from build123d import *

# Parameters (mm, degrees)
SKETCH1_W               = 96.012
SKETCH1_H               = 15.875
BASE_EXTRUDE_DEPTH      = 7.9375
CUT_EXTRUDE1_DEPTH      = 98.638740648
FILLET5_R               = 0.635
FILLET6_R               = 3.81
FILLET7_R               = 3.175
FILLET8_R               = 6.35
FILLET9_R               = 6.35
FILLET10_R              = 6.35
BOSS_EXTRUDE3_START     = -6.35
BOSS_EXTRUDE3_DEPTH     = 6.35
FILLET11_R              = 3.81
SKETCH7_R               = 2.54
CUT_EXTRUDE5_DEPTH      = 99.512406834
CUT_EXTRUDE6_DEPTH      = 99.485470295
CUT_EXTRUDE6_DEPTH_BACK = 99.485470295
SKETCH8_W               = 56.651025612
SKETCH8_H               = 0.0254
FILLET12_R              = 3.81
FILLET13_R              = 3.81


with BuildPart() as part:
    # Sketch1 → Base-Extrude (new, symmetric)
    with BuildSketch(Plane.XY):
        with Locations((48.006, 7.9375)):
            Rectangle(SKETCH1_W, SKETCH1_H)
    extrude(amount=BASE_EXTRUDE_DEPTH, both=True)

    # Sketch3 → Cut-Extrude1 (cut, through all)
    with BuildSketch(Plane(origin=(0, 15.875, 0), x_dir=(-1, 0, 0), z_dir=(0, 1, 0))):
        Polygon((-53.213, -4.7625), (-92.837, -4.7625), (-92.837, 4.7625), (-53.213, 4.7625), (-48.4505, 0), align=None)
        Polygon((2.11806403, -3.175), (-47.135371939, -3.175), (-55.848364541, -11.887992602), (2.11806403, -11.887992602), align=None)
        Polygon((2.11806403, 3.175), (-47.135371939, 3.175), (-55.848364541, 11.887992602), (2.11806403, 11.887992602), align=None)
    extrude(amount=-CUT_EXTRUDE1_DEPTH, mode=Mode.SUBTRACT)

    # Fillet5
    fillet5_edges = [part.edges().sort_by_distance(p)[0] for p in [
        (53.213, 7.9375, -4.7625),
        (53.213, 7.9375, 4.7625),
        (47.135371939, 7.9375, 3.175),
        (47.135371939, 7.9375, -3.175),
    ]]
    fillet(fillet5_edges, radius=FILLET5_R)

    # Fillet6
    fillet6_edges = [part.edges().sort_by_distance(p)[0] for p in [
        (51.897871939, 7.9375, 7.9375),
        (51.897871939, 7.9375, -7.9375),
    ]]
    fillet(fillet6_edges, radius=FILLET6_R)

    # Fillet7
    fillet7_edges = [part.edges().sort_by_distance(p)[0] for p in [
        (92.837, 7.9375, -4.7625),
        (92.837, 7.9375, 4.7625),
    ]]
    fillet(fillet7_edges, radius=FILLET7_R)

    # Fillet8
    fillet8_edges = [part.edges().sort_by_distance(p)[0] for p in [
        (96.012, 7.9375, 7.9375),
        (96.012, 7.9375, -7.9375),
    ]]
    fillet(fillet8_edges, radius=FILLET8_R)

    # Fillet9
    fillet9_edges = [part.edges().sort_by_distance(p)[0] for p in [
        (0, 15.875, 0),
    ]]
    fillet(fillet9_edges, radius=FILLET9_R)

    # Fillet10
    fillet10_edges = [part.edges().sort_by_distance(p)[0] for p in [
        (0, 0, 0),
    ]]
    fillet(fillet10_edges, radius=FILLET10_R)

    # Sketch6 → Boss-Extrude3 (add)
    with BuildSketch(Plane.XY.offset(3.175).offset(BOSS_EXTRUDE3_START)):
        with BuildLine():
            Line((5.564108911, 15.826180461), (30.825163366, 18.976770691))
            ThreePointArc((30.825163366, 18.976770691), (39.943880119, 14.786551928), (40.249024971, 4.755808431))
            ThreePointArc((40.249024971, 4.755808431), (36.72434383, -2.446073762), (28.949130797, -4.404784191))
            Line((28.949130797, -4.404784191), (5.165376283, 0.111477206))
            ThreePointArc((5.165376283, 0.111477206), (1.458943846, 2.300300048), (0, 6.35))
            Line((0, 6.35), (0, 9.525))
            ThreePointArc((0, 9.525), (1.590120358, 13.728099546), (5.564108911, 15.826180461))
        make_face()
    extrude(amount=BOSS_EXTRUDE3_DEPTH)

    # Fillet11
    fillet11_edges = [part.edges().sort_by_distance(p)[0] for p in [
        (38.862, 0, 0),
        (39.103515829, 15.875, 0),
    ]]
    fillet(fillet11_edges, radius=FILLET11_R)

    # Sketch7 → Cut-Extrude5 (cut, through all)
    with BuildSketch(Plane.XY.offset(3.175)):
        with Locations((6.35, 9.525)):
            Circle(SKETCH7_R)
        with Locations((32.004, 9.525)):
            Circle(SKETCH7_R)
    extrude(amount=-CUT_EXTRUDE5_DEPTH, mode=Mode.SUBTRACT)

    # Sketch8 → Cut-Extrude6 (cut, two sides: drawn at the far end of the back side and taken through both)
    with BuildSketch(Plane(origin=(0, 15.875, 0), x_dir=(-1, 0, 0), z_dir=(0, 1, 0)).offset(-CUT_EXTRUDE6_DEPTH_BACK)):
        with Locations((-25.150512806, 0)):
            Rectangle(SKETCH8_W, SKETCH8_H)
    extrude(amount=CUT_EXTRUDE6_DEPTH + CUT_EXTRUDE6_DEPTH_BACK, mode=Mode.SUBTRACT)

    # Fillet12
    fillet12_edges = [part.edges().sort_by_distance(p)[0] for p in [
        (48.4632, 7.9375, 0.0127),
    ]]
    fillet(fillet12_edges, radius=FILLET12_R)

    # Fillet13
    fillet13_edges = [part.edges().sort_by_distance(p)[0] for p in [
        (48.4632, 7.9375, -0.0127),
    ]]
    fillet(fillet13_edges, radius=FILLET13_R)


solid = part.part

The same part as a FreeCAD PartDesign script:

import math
import FreeCAD as App
import Part
import Sketcher
from FreeCAD import Vector
Q = App.Units.Quantity


def edges_at(feature, points):
    """Names of the edges that pass closest to the given points."""
    edges = feature.Shape.Edges
    near = lambda p: min(range(len(edges)), key=lambda i: edges[i].distToShape(Part.Vertex(*p))[0])
    return sorted({f"Edge{near(p) + 1}" for p in points})

doc = App.newDocument("Part")
params = doc.addObject("Spreadsheet::Sheet", "Params")
for row, (alias, value) in enumerate([
    ("sketch1_width", "3.78 in"),
    ("sketch1_height", "0.625 in"),
    ("pad1_length", "0.625 in"),
    ("sketch2_width", "1.56 in"),
    ("sketch2_height", "0.375 in"),
    ("fillet_radius", "0.025 in"),
    ("fillet2_radius", "0.15 in"),
    ("fillet3_radius", "0.125 in"),
    ("fillet4_radius", "0.25 in"),
    ("fillet5_radius", "0.25 in"),
    ("fillet6_radius", "0.25 in"),
    ("sketch3_radius", "0.25 in"),
    ("sketch3_radius2", "0.375 in"),
    ("sketch3_height", "0.125 in"),
    ("pad2_length", "0.25 in"),
    ("fillet7_radius", "0.15 in"),
    ("sketch4_diameter", "0.2 in"),
    ("sketch5_height", "0.001 in"),
    ("fillet8_radius", "0.15 in"),
    ("fillet9_radius", "0.15 in"),
], start=1):
    params.set(f"A{row}", alias)
    params.set(f"B{row}", "=" + value)
    params.setAlias(f"B{row}", alias)

body = doc.addObject("PartDesign::Body", "Body")

# Sketch on XY plane
sketch1 = doc.addObject("Sketcher::SketchObject", "Sketch")
body.addObject(sketch1)
sketch1.AttachmentSupport = (doc.XY_Plane, [""])
sketch1.MapMode = "FlatFace"
sketch1.addGeometry([
    Part.LineSegment(Vector(0, 16, 0), Vector(0, 0, 0)),
    Part.LineSegment(Vector(0, 0, 0), Vector(96, 0, 0)),
    Part.LineSegment(Vector(96, 0, 0), Vector(96, 16, 0)),
    Part.LineSegment(Vector(96, 16, 0), Vector(0, 16, 0)),
], False)
sketch1.addConstraint([
    Sketcher.Constraint("Coincident", 0, 2, 1, 1),
    Sketcher.Constraint("Coincident", 1, 2, 2, 1),
    Sketcher.Constraint("Coincident", 2, 2, 3, 1),
    Sketcher.Constraint("Coincident", 3, 2, 0, 1),
    Sketcher.Constraint("Vertical", 0),
    Sketcher.Constraint("Horizontal", 1),
    Sketcher.Constraint("Vertical", 2),
    Sketcher.Constraint("Horizontal", 3),
    Sketcher.Constraint("Coincident", 0, 2, -1, 1),
    Sketcher.Constraint("DistanceX", 1, 1, 1, 2, Q("3.78 in")),
    Sketcher.Constraint("DistanceY", 0, 2, 0, 1, Q("0.625 in")),
])
sketch1.setExpression("Constraints[9]", "Params.sketch1_width")
sketch1.setExpression("Constraints[10]", "Params.sketch1_height")
pad1 = doc.addObject("PartDesign::Pad", "Pad")
body.addObject(pad1)
pad1.Profile = sketch1
pad1.setExpression("Length", "Params.pad1_length")
pad1.Midplane = True

# Sketch on XZ plane
sketch2 = doc.addObject("Sketcher::SketchObject", "Sketch001")
body.addObject(sketch2)
sketch2.AttachmentSupport = (doc.XZ_Plane, [""])
sketch2.MapMode = "FlatFace"
sketch2.AttachmentOffset = App.Placement(Vector(0, 0, -0.625 * 25.4), App.Rotation())
sketch2.addGeometry([
    Part.LineSegment(Vector(93, -5, 0), Vector(53, -5, 0)),  # 0
    Part.LineSegment(Vector(53, -5, 0), Vector(48, 0, 0)),  # 1
    Part.LineSegment(Vector(48, 0, 0), Vector(53, 5, 0)),  # 2
    Part.LineSegment(Vector(53, 5, 0), Vector(93, 5, 0)),  # 3
    Part.LineSegment(Vector(93, 5, 0), Vector(93, -5, 0)),  # 4
    Part.LineSegment(Vector(-2, -3, 0), Vector(47, -3, 0)),  # 5
    Part.LineSegment(Vector(47, -3, 0), Vector(56, -12, 0)),  # 6
    Part.LineSegment(Vector(56, -12, 0), Vector(-2, -12, 0)),  # 7
    Part.LineSegment(Vector(-2, -12, 0), Vector(-2, -3, 0)),  # 8
    Part.LineSegment(Vector(47, 3, 0), Vector(-2, 3, 0)),  # 9
    Part.LineSegment(Vector(-2, 3, 0), Vector(-2, 12, 0)),  # 10
    Part.LineSegment(Vector(-2, 12, 0), Vector(56, 12, 0)),  # 11
    Part.LineSegment(Vector(56, 12, 0), Vector(47, 3, 0)),  # 12
], False)
sketch2.addConstraint([
    Sketcher.Constraint("Coincident", 0, 2, 1, 1),
    Sketcher.Constraint("Coincident", 1, 2, 2, 1),
    Sketcher.Constraint("Coincident", 2, 2, 3, 1),
    Sketcher.Constraint("Coincident", 3, 2, 4, 1),
    Sketcher.Constraint("Coincident", 4, 2, 0, 1),
    Sketcher.Constraint("Coincident", 5, 2, 6, 1),
    Sketcher.Constraint("Coincident", 6, 2, 7, 1),
    Sketcher.Constraint("Coincident", 7, 2, 8, 1),
    Sketcher.Constraint("Coincident", 8, 2, 5, 1),
    Sketcher.Constraint("Coincident", 9, 2, 10, 1),
    Sketcher.Constraint("Coincident", 10, 2, 11, 1),
    Sketcher.Constraint("Coincident", 11, 2, 12, 1),
    Sketcher.Constraint("Coincident", 12, 2, 9, 1),
    Sketcher.Constraint("Horizontal", 0),
    Sketcher.Constraint("Horizontal", 3),
    Sketcher.Constraint("Vertical", 4),
    Sketcher.Constraint("Horizontal", 5),
    Sketcher.Constraint("Horizontal", 7),
    Sketcher.Constraint("Vertical", 8),
    Sketcher.Constraint("Horizontal", 9),
    Sketcher.Constraint("Vertical", 10),
    Sketcher.Constraint("Horizontal", 11),
    Sketcher.Constraint("Symmetric", 0, 2, 2, 2, -1),
    Sketcher.Constraint("Symmetric", 8, 2, 9, 2, -1),
    Sketcher.Constraint("Symmetric", 6, 2, 11, 2, -1),
    Sketcher.Constraint("PointOnObject", 1, 2, -1),
    Sketcher.Constraint("Perpendicular", 1, 2),
    Sketcher.Constraint("Perpendicular", 2, 6),
    Sketcher.Constraint("Perpendicular", 6, 12),
    Sketcher.Constraint("DistanceX", 0, 2, 0, 1, Q("1.56 in")),
    Sketcher.Constraint("DistanceY", 4, 2, 4, 1, Q("0.375 in")),
    Sketcher.Constraint("DistanceY", 8, 2, 9, 2, Q("0.25 in")),
    Sketcher.Constraint("DistanceX", -1, 1, 0, 2, Q("2.095 in")),
    Sketcher.Constraint("DistanceX", 7, 2, 7, 1, 57.966429),
    Sketcher.Constraint("DistanceX", 5, 1, 5, 2, 49.253436),
    Sketcher.Constraint("DistanceX", -1, 1, 5, 2, 47.135372),
])
sketch2.setExpression("Constraints[29]", "Params.sketch2_width")
sketch2.setExpression("Constraints[30]", "Params.sketch2_height")
pocket1 = doc.addObject("PartDesign::Pocket", "Pocket")
body.addObject(pocket1)
pocket1.Profile = sketch2
pocket1.Type = "ThroughAll"
pocket1.Reversed = True
doc.recompute()

fillet = doc.addObject("PartDesign::Fillet", "Fillet")
body.addObject(fillet)
fillet.Base = (pocket1, edges_at(pocket1, [
    (53.213, 7.938, -4.763),
    (53.213, 7.938, 4.763),
    (47.135, 7.938, 3.175),
    (47.135, 7.938, -3.175),
]))
fillet.setExpression("Radius", "Params.fillet_radius")
doc.recompute()

fillet2 = doc.addObject("PartDesign::Fillet", "Fillet001")
body.addObject(fillet2)
fillet2.Base = (fillet, edges_at(fillet, [(51.898, 7.938, 7.938), (51.898, 7.938, -7.938)]))
fillet2.setExpression("Radius", "Params.fillet2_radius")
doc.recompute()

fillet3 = doc.addObject("PartDesign::Fillet", "Fillet002")
body.addObject(fillet3)
fillet3.Base = (fillet2, edges_at(fillet2, [(92.837, 7.938, -4.763), (92.837, 7.938, 4.763)]))
fillet3.setExpression("Radius", "Params.fillet3_radius")
doc.recompute()

fillet4 = doc.addObject("PartDesign::Fillet", "Fillet003")
body.addObject(fillet4)
fillet4.Base = (fillet3, edges_at(fillet3, [(96.012, 7.938, 7.938), (96.012, 7.938, -7.938)]))
fillet4.setExpression("Radius", "Params.fillet4_radius")
doc.recompute()

fillet5 = doc.addObject("PartDesign::Fillet", "Fillet004")
body.addObject(fillet5)
fillet5.Base = (fillet4, edges_at(fillet4, [(0, 15.875, 0)]))
fillet5.setExpression("Radius", "Params.fillet5_radius")
doc.recompute()

fillet6 = doc.addObject("PartDesign::Fillet", "Fillet005")
body.addObject(fillet6)
fillet6.Base = (fillet5, edges_at(fillet5, [(0, 0, 0)]))
fillet6.setExpression("Radius", "Params.fillet6_radius")

# Sketch on XY plane
sketch3 = doc.addObject("Sketcher::SketchObject", "Sketch002")
body.addObject(sketch3)
sketch3.AttachmentSupport = (doc.XY_Plane, [""])
sketch3.MapMode = "FlatFace"
sketch3.AttachmentOffset = App.Placement(Vector(0, 0, -0.125 * 25.4), App.Rotation())
sketch3.addGeometry([
    Part.LineSegment(Vector(30.8, 19, 0), Vector(5.6, 15.8, 0)),  # 0
    Part.ArcOfCircle(Part.Circle(Vector(6.4, 9.5, 0), Vector(0, 0, 1), 6.4), math.radians(97), math.radians(180)),  # 1
    Part.LineSegment(Vector(0, 9.5, 0), Vector(0, 6.3, 0)),  # 2
    Part.ArcOfCircle(Part.Circle(Vector(6.3, 6.3, 0), Vector(0, 0, 1), 6.3), math.radians(180), math.radians(259)),  # 3
    Part.LineSegment(Vector(5.2, 0.1, 0), Vector(28.9, -4.4, 0)),  # 4
    Part.ArcOfCircle(Part.Circle(Vector(30.7, 5, 0), Vector(0, 0, 1), 9.5), math.radians(-101), math.radians(-1)),  # 5
    Part.ArcOfCircle(Part.Circle(Vector(32, 9.5, 0), Vector(0, 0, 1), 9.5), math.radians(-30), math.radians(97)),  # 6
], False)
sketch3.addConstraint([
    Sketcher.Constraint("Tangent", 0, 2, 1, 1),
    Sketcher.Constraint("Tangent", 1, 2, 2, 1),
    Sketcher.Constraint("Tangent", 2, 2, 3, 1),
    Sketcher.Constraint("Tangent", 3, 2, 4, 1),
    Sketcher.Constraint("Tangent", 4, 2, 5, 1),
    Sketcher.Constraint("Coincident", 5, 2, 6, 1),
    Sketcher.Constraint("Tangent", 6, 2, 0, 1),
    Sketcher.Constraint("Vertical", 2),
    Sketcher.Constraint("Equal", 1, 3),
    Sketcher.Constraint("Equal", 5, 6),
    Sketcher.Constraint("PointOnObject", 1, 2, -2),
    Sketcher.Constraint("Horizontal", 1, 3, 6, 3),
    Sketcher.Constraint("Radius", 1, Q("0.25 in")),
    Sketcher.Constraint("Radius", 5, Q("0.375 in")),
    Sketcher.Constraint("DistanceY", 2, 2, 2, 1, Q("0.125 in")),
    Sketcher.Constraint("DistanceY", -1, 1, 3, 3, Q("0.25 in")),
    Sketcher.Constraint("DistanceX", -1, 1, 6, 3, Q("1.26 in")),
    Sketcher.Constraint("DistanceY", 5, 3, 1, 3, Q("0.18 in")),
    Sketcher.Constraint("Distance", 4, 24.20875),
])
sketch3.setExpression("Constraints[12]", "Params.sketch3_radius")
sketch3.setExpression("Constraints[13]", "Params.sketch3_radius2")
sketch3.setExpression("Constraints[14]", "Params.sketch3_height")
pad2 = doc.addObject("PartDesign::Pad", "Pad001")
body.addObject(pad2)
pad2.Profile = sketch3
pad2.setExpression("Length", "Params.pad2_length")
doc.recompute()

fillet7 = doc.addObject("PartDesign::Fillet", "Fillet006")
body.addObject(fillet7)
fillet7.Base = (pad2, edges_at(pad2, [(38.862, 0, 0), (39.104, 15.875, 0)]))
fillet7.setExpression("Radius", "Params.fillet7_radius")

# Sketch on XY plane
sketch4 = doc.addObject("Sketcher::SketchObject", "Sketch003")
body.addObject(sketch4)
sketch4.AttachmentSupport = (doc.XY_Plane, [""])
sketch4.MapMode = "FlatFace"
sketch4.AttachmentOffset = App.Placement(Vector(0, 0, 0.125 * 25.4), App.Rotation())
sketch4.addGeometry([
    Part.Circle(Vector(6.3, 9.5, 0), Vector(0, 0, 1), 2.5),
    Part.Circle(Vector(32, 9.5, 0), Vector(0, 0, 1), 2.5),
], False)
sketch4.addConstraint([
    Sketcher.Constraint("Equal", 0, 1),
    Sketcher.Constraint("Horizontal", 0, 3, 1, 3),
    Sketcher.Constraint("Diameter", 0, Q("0.2 in")),
    Sketcher.Constraint("DistanceX", -1, 1, 0, 3, Q("0.25 in")),
    Sketcher.Constraint("DistanceX", -1, 1, 1, 3, Q("1.26 in")),
    Sketcher.Constraint("DistanceY", -1, 1, 0, 3, Q("0.375 in")),
])
sketch4.setExpression("Constraints[2]", "Params.sketch4_diameter")
pocket2 = doc.addObject("PartDesign::Pocket", "Pocket001")
body.addObject(pocket2)
pocket2.Profile = sketch4
pocket2.Type = "ThroughAll"

# Sketch on XZ plane
sketch5 = doc.addObject("Sketcher::SketchObject", "Sketch004")
body.addObject(sketch5)
sketch5.AttachmentSupport = (doc.XZ_Plane, [""])
sketch5.MapMode = "FlatFace"
sketch5.AttachmentOffset = App.Placement(Vector(0, 0, -0.625 * 25.4), App.Rotation())
sketch5.addGeometry([
    Part.LineSegment(Vector(53.476, 0.013, 0), Vector(53.476, -0.013, 0)),
    Part.LineSegment(Vector(53.476, -0.013, 0), Vector(-3.175, -0.013, 0)),
    Part.LineSegment(Vector(-3.175, -0.013, 0), Vector(-3.175, 0.013, 0)),
    Part.LineSegment(Vector(-3.175, 0.013, 0), Vector(53.476, 0.013, 0)),
], False)
sketch5.addConstraint([
    Sketcher.Constraint("Coincident", 0, 2, 1, 1),
    Sketcher.Constraint("Coincident", 1, 2, 2, 1),
    Sketcher.Constraint("Coincident", 2, 2, 3, 1),
    Sketcher.Constraint("Coincident", 3, 2, 0, 1),
    Sketcher.Constraint("Vertical", 0),
    Sketcher.Constraint("Horizontal", 1),
    Sketcher.Constraint("Vertical", 2),
    Sketcher.Constraint("Horizontal", 3),
    Sketcher.Constraint("DistanceY", 0, 2, 0, 1, Q("0.001 in")),
    Sketcher.Constraint("DistanceX", 1, 2, -1, 1, Q("0.125 in")),
    Sketcher.Constraint("DistanceY", 0, 2, -1, 1, Q("0.0005 in")),
    Sketcher.Constraint("DistanceX", 1, 2, 1, 1, 56.651026),
])
sketch5.setExpression("Constraints[8]", "Params.sketch5_height")
pocket3 = doc.addObject("PartDesign::Pocket", "Pocket002")
body.addObject(pocket3)
pocket3.Profile = sketch5
pocket3.Type = "ThroughAll"
pocket3.Midplane = True
doc.recompute()

fillet8 = doc.addObject("PartDesign::Fillet", "Fillet007")
body.addObject(fillet8)
fillet8.Base = (pocket3, edges_at(pocket3, [(48.463, 7.938, 0.013)]))
fillet8.setExpression("Radius", "Params.fillet8_radius")
doc.recompute()

fillet9 = doc.addObject("PartDesign::Fillet", "Fillet008")
body.addObject(fillet9)
fillet9.Base = (fillet8, edges_at(fillet8, [(48.463, 7.938, -0.013)]))
fillet9.setExpression("Radius", "Params.fillet9_radius")

doc.recompute()
